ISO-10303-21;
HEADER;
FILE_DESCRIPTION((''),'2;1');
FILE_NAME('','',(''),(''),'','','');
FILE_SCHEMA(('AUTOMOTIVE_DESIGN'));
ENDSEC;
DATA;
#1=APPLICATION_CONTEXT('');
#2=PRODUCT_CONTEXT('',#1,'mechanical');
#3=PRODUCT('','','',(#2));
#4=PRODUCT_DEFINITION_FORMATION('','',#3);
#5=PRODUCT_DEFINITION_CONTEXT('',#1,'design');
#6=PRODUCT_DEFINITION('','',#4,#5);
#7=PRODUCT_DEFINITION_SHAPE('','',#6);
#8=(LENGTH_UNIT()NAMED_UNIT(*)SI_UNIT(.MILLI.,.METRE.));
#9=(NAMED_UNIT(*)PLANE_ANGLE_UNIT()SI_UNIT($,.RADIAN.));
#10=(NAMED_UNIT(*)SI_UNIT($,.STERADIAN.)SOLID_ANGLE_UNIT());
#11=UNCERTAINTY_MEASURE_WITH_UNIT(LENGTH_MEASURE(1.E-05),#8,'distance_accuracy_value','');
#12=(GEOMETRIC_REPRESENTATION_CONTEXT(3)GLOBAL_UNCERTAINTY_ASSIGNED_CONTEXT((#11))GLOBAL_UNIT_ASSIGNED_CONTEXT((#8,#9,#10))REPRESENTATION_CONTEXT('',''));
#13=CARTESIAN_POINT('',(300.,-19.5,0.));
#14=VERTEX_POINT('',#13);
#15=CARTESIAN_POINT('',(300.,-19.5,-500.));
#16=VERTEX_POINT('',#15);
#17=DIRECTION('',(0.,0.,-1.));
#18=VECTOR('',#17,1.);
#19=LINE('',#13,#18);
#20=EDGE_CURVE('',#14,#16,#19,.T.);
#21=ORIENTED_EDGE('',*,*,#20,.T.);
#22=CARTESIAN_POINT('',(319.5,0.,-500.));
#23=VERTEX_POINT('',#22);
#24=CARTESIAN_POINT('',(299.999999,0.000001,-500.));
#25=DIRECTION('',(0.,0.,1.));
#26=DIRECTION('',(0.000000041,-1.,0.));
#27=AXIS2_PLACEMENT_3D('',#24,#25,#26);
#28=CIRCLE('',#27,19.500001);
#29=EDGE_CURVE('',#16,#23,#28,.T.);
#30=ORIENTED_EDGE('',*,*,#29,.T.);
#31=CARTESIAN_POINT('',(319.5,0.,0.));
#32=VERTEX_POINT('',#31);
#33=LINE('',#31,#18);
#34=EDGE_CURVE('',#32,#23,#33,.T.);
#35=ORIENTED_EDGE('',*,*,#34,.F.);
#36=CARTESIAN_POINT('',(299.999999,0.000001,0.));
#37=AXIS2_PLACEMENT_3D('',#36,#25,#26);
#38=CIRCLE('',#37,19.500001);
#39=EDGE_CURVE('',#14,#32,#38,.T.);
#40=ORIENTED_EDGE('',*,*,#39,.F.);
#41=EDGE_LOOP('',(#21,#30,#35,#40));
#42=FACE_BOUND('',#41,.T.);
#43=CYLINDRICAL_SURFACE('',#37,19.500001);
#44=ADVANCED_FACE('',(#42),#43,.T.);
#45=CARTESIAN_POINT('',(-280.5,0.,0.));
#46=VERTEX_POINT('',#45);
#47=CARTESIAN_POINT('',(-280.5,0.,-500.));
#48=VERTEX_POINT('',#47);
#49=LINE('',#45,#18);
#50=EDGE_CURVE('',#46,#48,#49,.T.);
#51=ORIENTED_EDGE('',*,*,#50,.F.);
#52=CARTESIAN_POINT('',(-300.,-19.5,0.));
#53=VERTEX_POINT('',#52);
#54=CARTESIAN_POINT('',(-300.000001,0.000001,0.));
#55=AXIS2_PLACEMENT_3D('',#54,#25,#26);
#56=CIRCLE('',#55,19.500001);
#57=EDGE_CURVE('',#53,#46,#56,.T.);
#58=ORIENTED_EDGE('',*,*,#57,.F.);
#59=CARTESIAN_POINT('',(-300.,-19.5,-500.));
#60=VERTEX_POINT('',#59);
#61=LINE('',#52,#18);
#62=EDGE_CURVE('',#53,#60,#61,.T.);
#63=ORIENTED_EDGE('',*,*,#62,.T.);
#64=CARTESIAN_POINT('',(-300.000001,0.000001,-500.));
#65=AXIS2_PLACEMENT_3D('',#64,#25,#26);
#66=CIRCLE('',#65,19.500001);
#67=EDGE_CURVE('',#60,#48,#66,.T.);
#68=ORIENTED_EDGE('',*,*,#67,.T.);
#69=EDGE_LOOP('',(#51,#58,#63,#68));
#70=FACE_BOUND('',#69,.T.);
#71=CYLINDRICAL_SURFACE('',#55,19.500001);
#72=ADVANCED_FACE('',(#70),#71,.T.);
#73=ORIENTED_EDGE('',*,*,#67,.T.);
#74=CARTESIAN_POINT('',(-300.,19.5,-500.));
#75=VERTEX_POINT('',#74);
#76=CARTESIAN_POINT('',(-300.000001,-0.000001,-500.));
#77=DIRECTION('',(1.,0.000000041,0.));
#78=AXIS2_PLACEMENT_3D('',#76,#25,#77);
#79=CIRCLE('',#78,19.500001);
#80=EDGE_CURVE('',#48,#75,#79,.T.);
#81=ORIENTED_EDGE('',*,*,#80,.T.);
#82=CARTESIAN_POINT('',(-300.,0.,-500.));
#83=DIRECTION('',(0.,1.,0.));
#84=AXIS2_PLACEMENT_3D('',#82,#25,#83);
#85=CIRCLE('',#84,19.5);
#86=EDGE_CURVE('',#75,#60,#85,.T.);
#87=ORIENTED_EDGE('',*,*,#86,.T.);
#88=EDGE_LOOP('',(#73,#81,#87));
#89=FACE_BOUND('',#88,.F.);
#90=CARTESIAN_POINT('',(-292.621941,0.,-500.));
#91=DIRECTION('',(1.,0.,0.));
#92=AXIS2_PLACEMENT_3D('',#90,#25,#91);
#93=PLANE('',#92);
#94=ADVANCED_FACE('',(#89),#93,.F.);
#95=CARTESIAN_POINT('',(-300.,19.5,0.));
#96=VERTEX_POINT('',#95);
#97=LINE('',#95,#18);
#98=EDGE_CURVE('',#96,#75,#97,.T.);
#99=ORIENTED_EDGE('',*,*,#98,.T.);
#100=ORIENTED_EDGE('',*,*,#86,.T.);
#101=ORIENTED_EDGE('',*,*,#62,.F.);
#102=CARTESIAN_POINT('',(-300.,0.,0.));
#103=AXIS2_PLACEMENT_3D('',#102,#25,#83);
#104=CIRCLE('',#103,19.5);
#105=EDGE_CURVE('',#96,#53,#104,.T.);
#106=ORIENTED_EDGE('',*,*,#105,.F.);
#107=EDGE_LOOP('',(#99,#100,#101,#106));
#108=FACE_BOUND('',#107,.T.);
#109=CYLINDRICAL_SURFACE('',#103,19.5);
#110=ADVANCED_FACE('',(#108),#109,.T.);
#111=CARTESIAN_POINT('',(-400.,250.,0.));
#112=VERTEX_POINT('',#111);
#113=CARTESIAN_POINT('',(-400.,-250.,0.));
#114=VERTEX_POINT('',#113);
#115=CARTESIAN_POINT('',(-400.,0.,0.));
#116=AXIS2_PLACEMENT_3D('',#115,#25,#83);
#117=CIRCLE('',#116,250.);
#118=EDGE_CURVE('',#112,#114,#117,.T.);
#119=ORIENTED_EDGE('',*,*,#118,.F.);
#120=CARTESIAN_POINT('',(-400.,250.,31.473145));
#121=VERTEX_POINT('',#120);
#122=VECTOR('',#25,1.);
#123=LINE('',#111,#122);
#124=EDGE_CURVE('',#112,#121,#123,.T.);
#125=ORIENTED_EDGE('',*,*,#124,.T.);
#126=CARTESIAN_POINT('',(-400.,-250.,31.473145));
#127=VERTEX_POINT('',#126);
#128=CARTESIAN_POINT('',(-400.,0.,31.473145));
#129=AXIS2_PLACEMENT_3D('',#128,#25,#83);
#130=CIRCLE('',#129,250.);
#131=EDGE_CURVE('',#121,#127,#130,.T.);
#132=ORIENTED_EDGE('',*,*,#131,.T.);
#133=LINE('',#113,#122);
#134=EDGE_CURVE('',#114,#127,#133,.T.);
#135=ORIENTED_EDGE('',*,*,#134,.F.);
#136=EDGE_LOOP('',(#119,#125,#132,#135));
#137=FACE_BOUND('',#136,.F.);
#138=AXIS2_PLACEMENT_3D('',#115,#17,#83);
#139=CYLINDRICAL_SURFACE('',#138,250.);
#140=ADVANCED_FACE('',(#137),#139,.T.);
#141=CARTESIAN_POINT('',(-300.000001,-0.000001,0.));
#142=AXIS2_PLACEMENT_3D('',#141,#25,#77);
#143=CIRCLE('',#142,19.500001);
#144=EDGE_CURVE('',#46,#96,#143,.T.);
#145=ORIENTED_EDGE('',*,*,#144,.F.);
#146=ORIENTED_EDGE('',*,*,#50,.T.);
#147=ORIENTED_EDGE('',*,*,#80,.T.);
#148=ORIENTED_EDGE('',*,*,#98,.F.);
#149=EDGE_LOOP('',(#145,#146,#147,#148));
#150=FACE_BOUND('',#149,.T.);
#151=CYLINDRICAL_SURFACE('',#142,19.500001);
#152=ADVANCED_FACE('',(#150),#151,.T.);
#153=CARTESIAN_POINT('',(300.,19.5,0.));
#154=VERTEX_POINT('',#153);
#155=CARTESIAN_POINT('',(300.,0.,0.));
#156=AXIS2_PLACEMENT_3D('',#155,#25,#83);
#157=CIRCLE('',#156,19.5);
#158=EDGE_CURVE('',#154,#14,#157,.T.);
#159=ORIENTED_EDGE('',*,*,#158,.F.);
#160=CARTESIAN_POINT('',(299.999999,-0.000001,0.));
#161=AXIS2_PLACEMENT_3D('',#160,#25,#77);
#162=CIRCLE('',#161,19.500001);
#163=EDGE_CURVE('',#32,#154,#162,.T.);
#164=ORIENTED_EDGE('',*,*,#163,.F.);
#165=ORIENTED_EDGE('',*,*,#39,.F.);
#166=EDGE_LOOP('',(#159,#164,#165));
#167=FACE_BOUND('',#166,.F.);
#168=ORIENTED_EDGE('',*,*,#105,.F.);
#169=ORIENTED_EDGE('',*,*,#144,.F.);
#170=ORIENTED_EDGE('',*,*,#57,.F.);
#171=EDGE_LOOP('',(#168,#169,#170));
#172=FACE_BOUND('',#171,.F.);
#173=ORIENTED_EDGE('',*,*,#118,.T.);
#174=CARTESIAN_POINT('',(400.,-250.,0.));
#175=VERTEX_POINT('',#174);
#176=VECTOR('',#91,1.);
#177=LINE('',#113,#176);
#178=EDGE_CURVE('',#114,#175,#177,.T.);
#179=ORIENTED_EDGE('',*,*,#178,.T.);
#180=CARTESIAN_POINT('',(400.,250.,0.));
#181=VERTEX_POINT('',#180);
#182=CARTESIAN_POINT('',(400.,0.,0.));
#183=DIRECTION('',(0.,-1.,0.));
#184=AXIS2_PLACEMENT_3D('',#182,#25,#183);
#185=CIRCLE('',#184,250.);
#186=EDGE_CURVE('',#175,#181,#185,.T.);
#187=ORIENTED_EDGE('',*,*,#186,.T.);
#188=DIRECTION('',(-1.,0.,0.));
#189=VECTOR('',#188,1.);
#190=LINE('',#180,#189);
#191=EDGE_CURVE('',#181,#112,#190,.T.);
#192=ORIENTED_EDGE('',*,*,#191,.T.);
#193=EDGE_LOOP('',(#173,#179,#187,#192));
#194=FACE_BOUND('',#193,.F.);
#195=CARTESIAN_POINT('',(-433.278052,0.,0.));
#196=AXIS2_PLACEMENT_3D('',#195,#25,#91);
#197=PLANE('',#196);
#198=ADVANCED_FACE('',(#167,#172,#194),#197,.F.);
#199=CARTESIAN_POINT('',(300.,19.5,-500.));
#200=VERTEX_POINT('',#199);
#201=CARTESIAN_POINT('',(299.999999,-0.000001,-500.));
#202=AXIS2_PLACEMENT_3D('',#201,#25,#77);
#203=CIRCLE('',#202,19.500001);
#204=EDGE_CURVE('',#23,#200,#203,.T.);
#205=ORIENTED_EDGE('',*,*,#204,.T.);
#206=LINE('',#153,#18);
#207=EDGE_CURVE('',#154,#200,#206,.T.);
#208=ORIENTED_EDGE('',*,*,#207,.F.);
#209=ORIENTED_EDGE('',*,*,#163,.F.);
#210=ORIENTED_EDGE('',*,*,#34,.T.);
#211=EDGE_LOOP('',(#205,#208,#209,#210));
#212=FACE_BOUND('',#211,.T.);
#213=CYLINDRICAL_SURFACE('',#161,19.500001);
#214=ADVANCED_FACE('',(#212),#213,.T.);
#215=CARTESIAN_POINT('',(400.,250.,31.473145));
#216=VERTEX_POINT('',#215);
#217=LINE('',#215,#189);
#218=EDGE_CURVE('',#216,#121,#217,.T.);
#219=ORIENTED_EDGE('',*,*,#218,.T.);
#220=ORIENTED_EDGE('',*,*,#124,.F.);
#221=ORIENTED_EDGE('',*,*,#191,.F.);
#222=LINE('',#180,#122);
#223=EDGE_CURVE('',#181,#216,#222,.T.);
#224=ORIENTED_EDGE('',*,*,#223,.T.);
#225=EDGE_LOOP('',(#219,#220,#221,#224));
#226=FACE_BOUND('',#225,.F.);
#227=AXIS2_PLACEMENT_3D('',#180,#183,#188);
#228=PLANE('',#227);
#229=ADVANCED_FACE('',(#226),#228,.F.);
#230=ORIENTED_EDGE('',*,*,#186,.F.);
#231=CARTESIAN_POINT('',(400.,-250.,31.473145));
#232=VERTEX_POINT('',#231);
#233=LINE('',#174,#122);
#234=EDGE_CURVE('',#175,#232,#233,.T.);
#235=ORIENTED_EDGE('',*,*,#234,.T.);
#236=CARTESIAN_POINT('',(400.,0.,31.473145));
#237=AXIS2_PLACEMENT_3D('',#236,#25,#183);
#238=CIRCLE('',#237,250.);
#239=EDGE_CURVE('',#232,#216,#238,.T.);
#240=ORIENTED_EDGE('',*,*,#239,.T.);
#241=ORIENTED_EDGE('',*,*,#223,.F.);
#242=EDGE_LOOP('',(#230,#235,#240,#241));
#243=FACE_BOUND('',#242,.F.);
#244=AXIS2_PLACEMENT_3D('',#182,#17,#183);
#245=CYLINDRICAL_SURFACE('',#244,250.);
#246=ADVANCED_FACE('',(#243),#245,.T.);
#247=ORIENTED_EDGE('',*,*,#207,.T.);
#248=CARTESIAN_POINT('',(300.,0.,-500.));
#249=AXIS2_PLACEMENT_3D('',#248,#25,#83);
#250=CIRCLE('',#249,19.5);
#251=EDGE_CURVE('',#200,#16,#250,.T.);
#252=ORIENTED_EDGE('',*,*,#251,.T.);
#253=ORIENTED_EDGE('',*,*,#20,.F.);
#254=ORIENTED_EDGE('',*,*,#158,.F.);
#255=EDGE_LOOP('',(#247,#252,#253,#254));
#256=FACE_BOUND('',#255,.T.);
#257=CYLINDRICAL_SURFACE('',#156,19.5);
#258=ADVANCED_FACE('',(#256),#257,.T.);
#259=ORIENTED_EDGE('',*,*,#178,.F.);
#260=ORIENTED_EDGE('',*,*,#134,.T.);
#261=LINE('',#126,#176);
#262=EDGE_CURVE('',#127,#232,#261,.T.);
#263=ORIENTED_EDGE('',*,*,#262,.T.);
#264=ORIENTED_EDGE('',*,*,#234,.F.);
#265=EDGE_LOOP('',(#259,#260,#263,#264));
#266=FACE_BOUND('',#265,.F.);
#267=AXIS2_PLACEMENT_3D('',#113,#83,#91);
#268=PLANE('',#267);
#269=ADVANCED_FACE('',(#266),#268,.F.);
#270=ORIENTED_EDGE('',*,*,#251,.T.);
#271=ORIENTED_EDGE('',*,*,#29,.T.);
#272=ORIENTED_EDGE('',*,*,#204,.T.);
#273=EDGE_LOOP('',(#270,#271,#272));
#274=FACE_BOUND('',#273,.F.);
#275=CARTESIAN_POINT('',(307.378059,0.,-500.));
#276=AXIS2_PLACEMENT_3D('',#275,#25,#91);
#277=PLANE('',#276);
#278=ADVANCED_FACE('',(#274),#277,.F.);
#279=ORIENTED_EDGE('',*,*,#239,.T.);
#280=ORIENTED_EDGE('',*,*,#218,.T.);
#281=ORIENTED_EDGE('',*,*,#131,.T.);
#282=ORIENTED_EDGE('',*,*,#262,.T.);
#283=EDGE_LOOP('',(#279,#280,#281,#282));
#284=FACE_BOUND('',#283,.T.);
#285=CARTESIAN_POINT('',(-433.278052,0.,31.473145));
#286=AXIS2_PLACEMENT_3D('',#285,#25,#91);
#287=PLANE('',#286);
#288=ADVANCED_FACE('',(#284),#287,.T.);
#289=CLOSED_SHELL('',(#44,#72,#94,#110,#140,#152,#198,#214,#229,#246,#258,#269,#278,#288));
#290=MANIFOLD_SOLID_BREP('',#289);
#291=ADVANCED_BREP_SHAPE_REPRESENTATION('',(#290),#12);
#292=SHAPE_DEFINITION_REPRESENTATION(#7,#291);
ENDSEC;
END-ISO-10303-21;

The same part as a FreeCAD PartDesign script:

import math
import FreeCAD as App
import Part
import Sketcher

V = App.Vector

doc = App.newDocument("Part")
body = doc.addObject("PartDesign::Body", "Body")

sketch1 = body.newObject("Sketcher::SketchObject", "Sketch")
sketch1.AttachmentSupport = (doc.getObject("XY_Plane"), [""])
sketch1.MapMode = "FlatFace"
sketch1.addGeometry(Part.ArcOfCircle(Part.Circle(V(-400, 0, 0), V(0, 0, 1), 250), math.radians(90), math.radians(270)), False)
sketch1.addGeometry(Part.LineSegment(V(-400, -250, 0), V(400, -250, 0)), False)
sketch1.addGeometry(Part.ArcOfCircle(Part.Circle(V(400, 0, 0), V(0, 0, 1), 250), math.radians(-90), math.radians(90)), False)
sketch1.addGeometry(Part.LineSegment(V(400, 250, 0), V(-400, 250, 0)), False)
sketch1.addConstraint(Sketcher.Constraint("Tangent", 0, 2, 1, 1))
sketch1.addConstraint(Sketcher.Constraint("Tangent", 1, 2, 2, 1))
sketch1.addConstraint(Sketcher.Constraint("Tangent", 2, 2, 3, 1))
sketch1.addConstraint(Sketcher.Constraint("Tangent", 3, 2, 0, 1))
sketch1.addConstraint(Sketcher.Constraint("Horizontal", 1))
sketch1.addConstraint(Sketcher.Constraint("Horizontal", 3))
sketch1.addConstraint(Sketcher.Constraint("Symmetric", 0, 3, 2, 3, -1, 1))
sketch1.addConstraint(Sketcher.Constraint("Radius", 0, 250.0))
sketch1.addConstraint(Sketcher.Constraint("DistanceX", 1, 1, 1, 2, 800.0))
pad1 = body.newObject("PartDesign::Pad", "Pad")
pad1.Profile = sketch1
pad1.Length = 31.473145

sketch2 = body.newObject("Sketcher::SketchObject", "Sketch001")
sketch2.AttachmentSupport = (doc.getObject("XY_Plane"), [""])
sketch2.MapMode = "FlatFace"
sketch2.addGeometry(Part.ArcOfCircle(Part.Circle(V(-300, 0, 0), V(0, 0, 1), 20), math.radians(0), math.radians(90)), False)
sketch2.addGeometry(Part.ArcOfCircle(Part.Circle(V(-300, 0, 0), V(0, 0, 1), 20), math.radians(90), math.radians(270)), False)
sketch2.addGeometry(Part.ArcOfCircle(Part.Circle(V(-300, 0, 0), V(0, 0, 1), 20), math.radians(-90), math.radians(0)), False)
sketch2.addGeometry(Part.ArcOfCircle(Part.Circle(V(300, 0, 0), V(0, 0, 1), 20), math.radians(0), math.radians(90)), False)
sketch2.addGeometry(Part.ArcOfCircle(Part.Circle(V(300, 0, 0), V(0, 0, 1), 20), math.radians(90), math.radians(270)), False)
sketch2.addGeometry(Part.ArcOfCircle(Part.Circle(V(300, 0, 0), V(0, 0, 1), 20), math.radians(-90), math.radians(0)), False)
sketch2.addConstraint(Sketcher.Constraint("Tangent", 0, 2, 1, 1))
sketch2.addConstraint(Sketcher.Constraint("Tangent", 1, 2, 2, 1))
sketch2.addConstraint(Sketcher.Constraint("Tangent", 2, 2, 0, 1))
sketch2.addConstraint(Sketcher.Constraint("Tangent", 3, 2, 4, 1))
sketch2.addConstraint(Sketcher.Constraint("Tangent", 4, 2, 5, 1))
sketch2.addConstraint(Sketcher.Constraint("Tangent", 5, 2, 3, 1))
sketch2.addConstraint(Sketcher.Constraint("Equal", 2, 3))
sketch2.addConstraint(Sketcher.Constraint("Symmetric", 0, 3, 3, 3, -1, 1))
sketch2.addConstraint(Sketcher.Constraint("Symmetric", 0, 2, 3, 2, -2))
sketch2.addConstraint(Sketcher.Constraint("PointOnObject", 2, 2, -1))
sketch2.addConstraint(Sketcher.Constraint("PointOnObject", 5, 2, -1))
sketch2.addConstraint(Sketcher.Constraint("Vertical", 2, 3, 0, 2))
sketch2.addConstraint(Sketcher.Constraint("Vertical", 0, 2, 1, 2))
sketch2.addConstraint(Sketcher.Constraint("Vertical", 3, 2, 4, 2))
sketch2.addConstraint(Sketcher.Constraint("Radius", 0, 19.500001))
sketch2.addConstraint(Sketcher.Constraint("DistanceX", 0, 3, -1, 1, 300.000001))
pad2 = body.newObject("PartDesign::Pad", "Pad001")
pad2.Profile = sketch2
pad2.Length = 500
pad2.Reversed = True

doc.recompute()
